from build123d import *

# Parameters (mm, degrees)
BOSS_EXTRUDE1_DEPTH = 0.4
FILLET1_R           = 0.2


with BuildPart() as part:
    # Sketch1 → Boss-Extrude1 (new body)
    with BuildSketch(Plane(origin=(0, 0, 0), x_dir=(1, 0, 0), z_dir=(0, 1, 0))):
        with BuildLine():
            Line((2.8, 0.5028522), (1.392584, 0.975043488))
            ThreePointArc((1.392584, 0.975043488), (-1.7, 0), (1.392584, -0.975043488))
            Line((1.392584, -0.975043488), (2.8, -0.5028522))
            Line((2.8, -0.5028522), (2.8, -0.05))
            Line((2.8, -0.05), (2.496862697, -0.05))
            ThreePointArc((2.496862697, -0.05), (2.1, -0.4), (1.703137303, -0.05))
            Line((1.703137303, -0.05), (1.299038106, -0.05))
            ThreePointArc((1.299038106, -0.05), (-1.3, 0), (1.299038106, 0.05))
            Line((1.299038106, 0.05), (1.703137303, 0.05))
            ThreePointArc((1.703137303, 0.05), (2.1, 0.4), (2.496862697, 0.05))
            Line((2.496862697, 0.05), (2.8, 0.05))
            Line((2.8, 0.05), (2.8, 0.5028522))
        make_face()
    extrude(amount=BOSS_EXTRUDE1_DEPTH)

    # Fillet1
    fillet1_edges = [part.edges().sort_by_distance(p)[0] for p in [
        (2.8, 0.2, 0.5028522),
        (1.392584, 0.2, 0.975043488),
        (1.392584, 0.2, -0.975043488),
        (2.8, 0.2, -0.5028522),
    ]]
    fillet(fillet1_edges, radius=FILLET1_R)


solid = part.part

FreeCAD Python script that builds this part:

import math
import FreeCAD as App
import Part
import Sketcher

V = App.Vector
Q = App.Units.Quantity


def edges_at(feature, points):
    """Names of the edges that pass closest to the given points."""
    edges = feature.Shape.Edges
    near = lambda p: min(range(len(edges)), key=lambda i: edges[i].distToShape(Part.Vertex(*p))[0])
    return sorted({f"Edge{near(p) + 1}" for p in points})

doc = App.newDocument("Part")
body = doc.addObject("PartDesign::Body", "Body")

sketch1 = doc.addObject("Sketcher::SketchObject", "Sketch")
body.addObject(sketch1)
sketch1.AttachmentSupport = (doc.XZ_Plane, [""])
sketch1.MapMode = "FlatFace"
sketch1.addGeometry(Part.LineSegment(V(2.8, -0.502852, 0), V(1.392584, -0.975043, 0)), False)
sketch1.addGeometry(Part.ArcOfCircle(Part.Circle(V(0, 0, 0), V(0, 0, 1), 1.7), math.radians(34.9985), math.radians(325.0015)), False)
sketch1.addGeometry(Part.LineSegment(V(1.392584, 0.975043, 0), V(2.8, 0.502852, 0)), False)
sketch1.addGeometry(Part.LineSegment(V(2.8, 0.502852, 0), V(2.8, 0.05, 0)), False)
sketch1.addGeometry(Part.LineSegment(V(2.8, 0.05, 0), V(2.496863, 0.05, 0)), False)
sketch1.addGeometry(Part.ArcOfCircle(Part.Circle(V(2.1, 0, 0), V(0, 0, 1), 0.4), math.radians(7.180756), math.radians(172.819244)), False)
sketch1.addGeometry(Part.LineSegment(V(1.703137, 0.05, 0), V(1.299038, 0.05, 0)), False)
sketch1.addGeometry(Part.ArcOfCircle(Part.Circle(V(0, 0, 0), V(0, 0, 1), 1.3), math.radians(2.204228), math.radians(357.795772)), False)
sketch1.addGeometry(Part.LineSegment(V(1.299038, -0.05, 0), V(1.703137, -0.05, 0)), False)
sketch1.addGeometry(Part.ArcOfCircle(Part.Circle(V(2.1, 0, 0), V(0, 0, 1), 0.4), math.radians(-172.819244), math.radians(-7.180756)), False)
sketch1.addGeometry(Part.LineSegment(V(2.496863, -0.05, 0), V(2.8, -0.05, 0)), False)
sketch1.addGeometry(Part.LineSegment(V(2.8, -0.05, 0), V(2.8, -0.502852, 0)), False)
sketch1.addConstraint(Sketcher.Constraint("Coincident", 0, 2, 1, 2))
sketch1.addConstraint(Sketcher.Constraint("Coincident", 1, 1, 2, 1))
sketch1.addConstraint(Sketcher.Constraint("Coincident", 2, 2, 3, 1))
sketch1.addConstraint(Sketcher.Constraint("Coincident", 3, 2, 4, 1))
sketch1.addConstraint(Sketcher.Constraint("Coincident", 4, 2, 5, 1))
sketch1.addConstraint(Sketcher.Constraint("Coincident", 5, 2, 6, 1))
sketch1.addConstraint(Sketcher.Constraint("Coincident", 6, 2, 7, 1))
sketch1.addConstraint(Sketcher.Constraint("Coincident", 7, 2, 8, 1))
sketch1.addConstraint(Sketcher.Constraint("Coincident", 8, 2, 9, 1))
sketch1.addConstraint(Sketcher.Constraint("Coincident", 9, 2, 10, 1))
sketch1.addConstraint(Sketcher.Constraint("Coincident", 10, 2, 11, 1))
sketch1.addConstraint(Sketcher.Constraint("Coincident", 11, 2, 0, 1))
sketch1.addConstraint(Sketcher.Constraint("Vertical", 3))
sketch1.addConstraint(Sketcher.Constraint("Horizontal", 4))
sketch1.addConstraint(Sketcher.Constraint("Horizontal", 6))
sketch1.addConstraint(Sketcher.Constraint("Horizontal", 8))
sketch1.addConstraint(Sketcher.Constraint("Horizontal", 10))
sketch1.addConstraint(Sketcher.Constraint("Vertical", 11))
sketch1.addConstraint(Sketcher.Constraint("Coincident", 1, 3, -1, 1))
sketch1.addConstraint(Sketcher.Constraint("Coincident", 7, 3, -1, 1))
sketch1.addConstraint(Sketcher.Constraint("Coincident", 9, 3, 5, 3))
sketch1.addConstraint(Sketcher.Constraint("Equal", 5, 9))
sketch1.addConstraint(Sketcher.Constraint("Symmetric", 5, 2, 8, 2, -1))
sketch1.addConstraint(Sketcher.Constraint("Symmetric", 3, 2, 10, 2, -1))
sketch1.addConstraint(Sketcher.Constraint("Horizontal", 4, 2, 5, 2))
sketch1.addConstraint(Sketcher.Constraint("Vertical", 0, 2, 1, 1))
sketch1.addConstraint(Sketcher.Constraint("Equal", 3, 11))
sketch1.addConstraint(Sketcher.Constraint("Radius", 1, Q("1.7 mm")))
sketch1.addConstraint(Sketcher.Constraint("Radius", 5, Q("0.4 mm")))
sketch1.addConstraint(Sketcher.Constraint("Radius", 7, Q("1.3 mm")))
sketch1.addConstraint(Sketcher.Constraint("DistanceX", -1, 1, 5, 3, Q("2.1 mm")))
sketch1.addConstraint(Sketcher.Constraint("DistanceX", -1, 1, 2, 2, Q("2.8 mm")))
sketch1.addConstraint(Sketcher.Constraint("DistanceY", 7, 2, 6, 2, Q("0.1 mm")))
sketch1.addConstraint(Sketcher.Constraint("DistanceY", 3, 2, 3, 1, Q("0.452852 mm")))
sketch1.addConstraint(Sketcher.Constraint("DistanceY", 2, 2, 1, 1, Q("0.472191 mm")))
pad1 = doc.addObject("PartDesign::Pad", "Pad")
body.addObject(pad1)
pad1.Profile = sketch1
pad1.Length = 0.4
pad1.Reversed = True
doc.recompute()

fillet = doc.addObject("PartDesign::Fillet", "Fillet")
body.addObject(fillet)
fillet.Base = (pad1, edges_at(pad1, [
    (2.8, 0.2, 0.503),
    (1.393, 0.2, 0.975),
    (1.393, 0.2, -0.975),
    (2.8, 0.2, -0.503),
]))
fillet.Radius = 0.2

doc.recompute()
